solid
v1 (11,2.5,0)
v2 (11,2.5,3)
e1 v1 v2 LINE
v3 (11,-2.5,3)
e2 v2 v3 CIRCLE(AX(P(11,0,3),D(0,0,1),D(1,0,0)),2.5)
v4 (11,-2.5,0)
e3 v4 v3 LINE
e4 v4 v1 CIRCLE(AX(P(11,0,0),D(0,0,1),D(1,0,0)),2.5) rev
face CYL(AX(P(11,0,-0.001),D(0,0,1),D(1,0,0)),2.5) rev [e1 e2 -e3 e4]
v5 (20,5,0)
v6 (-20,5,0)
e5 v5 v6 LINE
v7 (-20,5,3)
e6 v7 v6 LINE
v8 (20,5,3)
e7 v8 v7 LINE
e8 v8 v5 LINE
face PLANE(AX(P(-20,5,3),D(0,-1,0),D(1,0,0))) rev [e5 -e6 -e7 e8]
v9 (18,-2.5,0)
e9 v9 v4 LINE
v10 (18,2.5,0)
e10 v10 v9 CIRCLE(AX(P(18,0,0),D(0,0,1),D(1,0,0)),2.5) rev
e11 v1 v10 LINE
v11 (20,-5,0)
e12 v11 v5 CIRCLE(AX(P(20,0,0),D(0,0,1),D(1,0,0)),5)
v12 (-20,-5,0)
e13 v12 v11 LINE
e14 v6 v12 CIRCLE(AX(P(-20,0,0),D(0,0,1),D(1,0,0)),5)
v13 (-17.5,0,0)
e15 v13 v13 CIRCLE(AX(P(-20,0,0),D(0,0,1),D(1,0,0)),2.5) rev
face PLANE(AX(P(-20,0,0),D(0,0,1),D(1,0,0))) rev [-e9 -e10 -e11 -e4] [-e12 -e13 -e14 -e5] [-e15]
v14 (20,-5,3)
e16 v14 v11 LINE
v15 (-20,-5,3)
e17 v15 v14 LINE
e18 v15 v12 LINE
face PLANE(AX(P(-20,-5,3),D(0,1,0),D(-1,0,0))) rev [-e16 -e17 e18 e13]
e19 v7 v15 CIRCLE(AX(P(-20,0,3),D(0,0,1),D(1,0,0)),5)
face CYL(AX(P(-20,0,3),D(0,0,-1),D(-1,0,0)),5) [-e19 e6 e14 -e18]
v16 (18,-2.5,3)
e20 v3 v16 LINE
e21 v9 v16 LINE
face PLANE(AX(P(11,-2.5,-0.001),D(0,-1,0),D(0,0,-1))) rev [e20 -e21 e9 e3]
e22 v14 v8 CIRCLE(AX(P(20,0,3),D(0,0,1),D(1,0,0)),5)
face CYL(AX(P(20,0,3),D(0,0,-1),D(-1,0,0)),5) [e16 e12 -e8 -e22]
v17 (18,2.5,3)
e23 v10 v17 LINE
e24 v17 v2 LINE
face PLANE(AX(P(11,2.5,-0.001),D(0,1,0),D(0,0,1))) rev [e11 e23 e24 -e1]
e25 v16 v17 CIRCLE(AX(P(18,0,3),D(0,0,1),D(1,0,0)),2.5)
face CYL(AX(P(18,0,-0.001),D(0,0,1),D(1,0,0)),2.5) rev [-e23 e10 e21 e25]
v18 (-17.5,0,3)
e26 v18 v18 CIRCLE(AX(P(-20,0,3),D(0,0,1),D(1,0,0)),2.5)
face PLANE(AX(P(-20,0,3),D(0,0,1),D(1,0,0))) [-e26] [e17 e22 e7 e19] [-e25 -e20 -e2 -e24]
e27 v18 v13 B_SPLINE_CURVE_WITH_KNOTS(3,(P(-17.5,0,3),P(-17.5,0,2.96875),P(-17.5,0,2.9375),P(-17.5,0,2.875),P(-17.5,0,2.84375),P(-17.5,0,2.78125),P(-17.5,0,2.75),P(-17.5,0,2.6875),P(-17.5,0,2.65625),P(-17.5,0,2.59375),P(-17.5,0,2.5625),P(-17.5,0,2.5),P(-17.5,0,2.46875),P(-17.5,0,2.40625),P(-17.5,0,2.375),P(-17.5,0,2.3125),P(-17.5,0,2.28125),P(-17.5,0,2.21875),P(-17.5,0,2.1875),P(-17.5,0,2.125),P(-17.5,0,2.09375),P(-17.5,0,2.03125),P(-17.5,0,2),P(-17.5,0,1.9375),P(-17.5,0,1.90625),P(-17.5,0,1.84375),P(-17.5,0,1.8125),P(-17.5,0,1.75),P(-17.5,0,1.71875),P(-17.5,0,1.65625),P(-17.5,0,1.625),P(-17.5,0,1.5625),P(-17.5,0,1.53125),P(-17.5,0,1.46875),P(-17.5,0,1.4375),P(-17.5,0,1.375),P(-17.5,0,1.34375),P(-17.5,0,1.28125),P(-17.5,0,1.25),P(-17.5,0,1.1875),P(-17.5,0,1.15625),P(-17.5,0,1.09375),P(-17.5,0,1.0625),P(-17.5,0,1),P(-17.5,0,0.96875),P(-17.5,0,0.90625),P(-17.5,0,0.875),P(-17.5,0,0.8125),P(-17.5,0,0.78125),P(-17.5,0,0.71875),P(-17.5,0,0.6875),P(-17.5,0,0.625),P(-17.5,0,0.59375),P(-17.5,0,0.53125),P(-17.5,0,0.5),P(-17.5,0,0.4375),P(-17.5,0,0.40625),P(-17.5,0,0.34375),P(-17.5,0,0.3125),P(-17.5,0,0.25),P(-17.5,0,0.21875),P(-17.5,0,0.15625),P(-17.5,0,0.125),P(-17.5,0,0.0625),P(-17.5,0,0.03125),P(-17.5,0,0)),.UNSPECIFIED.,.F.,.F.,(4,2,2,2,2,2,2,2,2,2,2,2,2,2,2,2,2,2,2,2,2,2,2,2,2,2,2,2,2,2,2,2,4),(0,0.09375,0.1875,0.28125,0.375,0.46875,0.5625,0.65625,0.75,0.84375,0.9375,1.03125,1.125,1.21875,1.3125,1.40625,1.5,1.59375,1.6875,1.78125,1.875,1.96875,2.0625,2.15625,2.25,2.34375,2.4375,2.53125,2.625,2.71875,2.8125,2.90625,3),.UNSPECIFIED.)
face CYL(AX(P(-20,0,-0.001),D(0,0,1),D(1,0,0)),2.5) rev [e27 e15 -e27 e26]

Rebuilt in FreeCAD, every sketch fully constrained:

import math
import FreeCAD as App
import Part
import Sketcher

V = App.Vector

doc = App.newDocument("Part")
body = doc.addObject("PartDesign::Body", "Body")

# Sketch on XY plane
sketch1 = body.newObject("Sketcher::SketchObject", "Sketch")
sketch1.AttachmentSupport = (doc.getObject("XY_Plane"), [""])
sketch1.MapMode = "FlatFace"
sketch1.addGeometry(Part.LineSegment(V(20, 5, 0), V(-20, 5, 0)), False)
sketch1.addGeometry(Part.ArcOfCircle(Part.Circle(V(-20, 0, 0), V(0, 0, 1), 5), math.radians(90), math.radians(270)), False)
sketch1.addGeometry(Part.LineSegment(V(-20, -5, 0), V(20, -5, 0)), False)
sketch1.addGeometry(Part.ArcOfCircle(Part.Circle(V(20, 0, 0), V(0, 0, 1), 5), math.radians(-90), math.radians(90)), False)
sketch1.addConstraint(Sketcher.Constraint("Tangent", 0, 2, 1, 1))
sketch1.addConstraint(Sketcher.Constraint("Tangent", 1, 2, 2, 1))
sketch1.addConstraint(Sketcher.Constraint("Tangent", 2, 2, 3, 1))
sketch1.addConstraint(Sketcher.Constraint("Tangent", 3, 2, 0, 1))
sketch1.addConstraint(Sketcher.Constraint("Horizontal", 0))
sketch1.addConstraint(Sketcher.Constraint("Horizontal", 2))
sketch1.addConstraint(Sketcher.Constraint("Symmetric", 1, 3, 3, 3, -1, 1))
sketch1.addConstraint(Sketcher.Constraint("Radius", 1, 5.0))
sketch1.addConstraint(Sketcher.Constraint("DistanceX", 0, 2, 0, 1, 40.0))
pad1 = body.newObject("PartDesign::Pad", "Pad")
pad1.Profile = sketch1
pad1.Length = 3

# Sketch on XY plane
sketch2 = body.newObject("Sketcher::SketchObject", "Sketch001")
sketch2.AttachmentSupport = (doc.getObject("XY_Plane"), [""])
sketch2.MapMode = "FlatFace"
sketch2.AttachmentOffset = App.Placement(V(0, 0, 3), App.Rotation())
sketch2.addGeometry(Part.Circle(V(-20, 0, 0), V(0, 0, 1), 2.5), False)
sketch2.addConstraint(Sketcher.Constraint("PointOnObject", 0, 3, -1))
sketch2.addConstraint(Sketcher.Constraint("Diameter", 0, 5.0))
sketch2.addConstraint(Sketcher.Constraint("DistanceX", 0, 3, -1, 1, 20.0))
pocket1 = body.newObject("PartDesign::Pocket", "Pocket")
pocket1.Profile = sketch2
pocket1.Type = "UpToFirst"

# Sketch on XY plane
sketch3 = body.newObject("Sketcher::SketchObject", "Sketch002")
sketch3.AttachmentSupport = (doc.getObject("XY_Plane"), [""])
sketch3.MapMode = "FlatFace"
sketch3.AttachmentOffset = App.Placement(V(0, 0, 3), App.Rotation())
sketch3.addGeometry(Part.LineSegment(V(18, 2.5, 0), V(11, 2.5, 0)), False)
sketch3.addGeometry(Part.ArcOfCircle(Part.Circle(V(11, 0, 0), V(0, 0, 1), 2.5), math.radians(90), math.radians(270)), False)
sketch3.addGeometry(Part.LineSegment(V(11, -2.5, 0), V(18, -2.5, 0)), False)
sketch3.addGeometry(Part.ArcOfCircle(Part.Circle(V(18, 0, 0), V(0, 0, 1), 2.5), math.radians(-90), math.radians(90)), False)
sketch3.addConstraint(Sketcher.Constraint("Tangent", 0, 2, 1, 1))
sketch3.addConstraint(Sketcher.Constraint("Tangent", 1, 2, 2, 1))
sketch3.addConstraint(Sketcher.Constraint("Tangent", 2, 2, 3, 1))
sketch3.addConstraint(Sketcher.Constraint("Tangent", 3, 2, 0, 1))
sketch3.addConstraint(Sketcher.Constraint("Horizontal", 0))
sketch3.addConstraint(Sketcher.Constraint("Horizontal", 2))
sketch3.addConstraint(Sketcher.Constraint("PointOnObject", 1, 3, -1))
sketch3.addConstraint(Sketcher.Constraint("Radius", 1, 2.5))
sketch3.addConstraint(Sketcher.Constraint("DistanceX", 0, 2, 0, 1, 7.0))
sketch3.addConstraint(Sketcher.Constraint("DistanceX", -1, 1, 1, 3, 11.0))
pocket2 = body.newObject("PartDesign::Pocket", "Pocket001")
pocket2.Profile = sketch3
pocket2.Type = "UpToFirst"

doc.recompute()
